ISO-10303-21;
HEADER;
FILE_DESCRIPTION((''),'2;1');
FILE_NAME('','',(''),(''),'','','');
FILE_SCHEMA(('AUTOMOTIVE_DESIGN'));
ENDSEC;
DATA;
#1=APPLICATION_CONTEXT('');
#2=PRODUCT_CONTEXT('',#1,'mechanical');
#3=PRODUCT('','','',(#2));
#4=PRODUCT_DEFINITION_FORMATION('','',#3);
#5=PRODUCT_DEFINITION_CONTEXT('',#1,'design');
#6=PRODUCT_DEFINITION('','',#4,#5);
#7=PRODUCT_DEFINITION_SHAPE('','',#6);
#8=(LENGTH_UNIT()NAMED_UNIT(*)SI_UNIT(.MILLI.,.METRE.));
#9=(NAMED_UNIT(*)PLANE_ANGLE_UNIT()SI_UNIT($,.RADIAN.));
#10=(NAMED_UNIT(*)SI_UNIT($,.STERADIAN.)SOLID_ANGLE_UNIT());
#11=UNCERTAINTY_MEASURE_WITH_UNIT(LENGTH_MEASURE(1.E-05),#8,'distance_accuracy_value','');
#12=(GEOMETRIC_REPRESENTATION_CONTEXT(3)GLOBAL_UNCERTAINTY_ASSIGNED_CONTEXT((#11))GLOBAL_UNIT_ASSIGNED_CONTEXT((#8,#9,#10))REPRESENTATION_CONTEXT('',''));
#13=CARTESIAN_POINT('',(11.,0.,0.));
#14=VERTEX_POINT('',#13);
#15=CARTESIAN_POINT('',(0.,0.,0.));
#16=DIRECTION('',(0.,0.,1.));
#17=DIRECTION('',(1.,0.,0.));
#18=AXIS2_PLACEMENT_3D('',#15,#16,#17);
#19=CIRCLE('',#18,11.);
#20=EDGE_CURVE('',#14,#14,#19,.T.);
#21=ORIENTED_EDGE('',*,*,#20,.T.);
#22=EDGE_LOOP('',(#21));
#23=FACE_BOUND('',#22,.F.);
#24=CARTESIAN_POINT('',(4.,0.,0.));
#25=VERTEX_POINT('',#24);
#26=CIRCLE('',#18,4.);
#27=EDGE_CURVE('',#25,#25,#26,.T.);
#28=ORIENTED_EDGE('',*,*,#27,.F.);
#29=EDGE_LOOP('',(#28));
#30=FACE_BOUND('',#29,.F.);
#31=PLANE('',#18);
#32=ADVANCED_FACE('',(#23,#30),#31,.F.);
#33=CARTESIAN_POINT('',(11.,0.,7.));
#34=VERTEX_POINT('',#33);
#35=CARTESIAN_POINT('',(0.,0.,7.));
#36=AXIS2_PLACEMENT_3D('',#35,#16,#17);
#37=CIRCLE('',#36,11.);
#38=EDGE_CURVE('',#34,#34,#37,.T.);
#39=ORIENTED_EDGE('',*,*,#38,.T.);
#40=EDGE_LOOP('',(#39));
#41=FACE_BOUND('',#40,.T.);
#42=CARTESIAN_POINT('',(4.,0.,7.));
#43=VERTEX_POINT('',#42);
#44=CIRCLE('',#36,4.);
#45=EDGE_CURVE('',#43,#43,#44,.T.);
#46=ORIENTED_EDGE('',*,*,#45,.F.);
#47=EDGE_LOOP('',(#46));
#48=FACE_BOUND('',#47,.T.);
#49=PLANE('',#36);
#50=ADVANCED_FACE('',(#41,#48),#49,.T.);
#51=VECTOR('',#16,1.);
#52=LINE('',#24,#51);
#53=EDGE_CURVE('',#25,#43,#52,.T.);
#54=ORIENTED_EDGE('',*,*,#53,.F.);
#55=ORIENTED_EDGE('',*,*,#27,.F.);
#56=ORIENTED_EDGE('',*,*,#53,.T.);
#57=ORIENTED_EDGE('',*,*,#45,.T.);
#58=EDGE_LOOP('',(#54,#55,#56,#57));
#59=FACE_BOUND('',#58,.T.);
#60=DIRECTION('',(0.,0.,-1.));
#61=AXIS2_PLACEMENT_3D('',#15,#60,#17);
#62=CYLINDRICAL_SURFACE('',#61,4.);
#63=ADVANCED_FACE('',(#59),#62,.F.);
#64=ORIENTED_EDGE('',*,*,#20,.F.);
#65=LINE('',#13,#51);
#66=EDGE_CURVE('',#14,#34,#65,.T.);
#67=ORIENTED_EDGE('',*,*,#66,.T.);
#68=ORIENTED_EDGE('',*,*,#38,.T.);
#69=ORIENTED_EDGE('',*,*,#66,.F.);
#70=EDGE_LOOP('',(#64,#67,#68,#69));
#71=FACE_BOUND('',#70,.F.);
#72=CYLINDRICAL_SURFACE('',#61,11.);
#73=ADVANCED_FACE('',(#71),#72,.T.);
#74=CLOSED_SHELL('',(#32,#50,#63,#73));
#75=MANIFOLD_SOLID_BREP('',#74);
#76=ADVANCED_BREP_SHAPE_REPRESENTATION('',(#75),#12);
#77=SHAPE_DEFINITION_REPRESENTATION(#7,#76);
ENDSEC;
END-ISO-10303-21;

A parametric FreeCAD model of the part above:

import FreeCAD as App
import Part
import Sketcher

V = App.Vector
Q = App.Units.Quantity

doc = App.newDocument("Part")
params = doc.addObject("Spreadsheet::Sheet", "Params")
for row, (alias, value) in enumerate([
    ("sketch1_diameter", "22 mm"),
    ("sketch1_diameter2", "8 mm"),
    ("pad1_length", "7 mm"),
], start=1):
    params.set(f"A{row}", alias)
    params.set(f"B{row}", "=" + value)
    params.setAlias(f"B{row}", alias)

body = doc.addObject("PartDesign::Body", "Body")

sketch1 = body.newObject("Sketcher::SketchObject", "Sketch")
sketch1.AttachmentSupport = (doc.getObject("XY_Plane"), [""])
sketch1.MapMode = "FlatFace"
sketch1.addGeometry(Part.Circle(V(0, 0, 0), V(0, 0, 1), 11), False)
sketch1.addGeometry(Part.Circle(V(0, 0, 0), V(0, 0, 1), 4), False)
sketch1.addConstraint(Sketcher.Constraint("Coincident", 0, 3, -1, 1))
sketch1.addConstraint(Sketcher.Constraint("Coincident", 1, 3, -1, 1))
sketch1.addConstraint(Sketcher.Constraint("Diameter", 0, Q("22 mm")))
sketch1.addConstraint(Sketcher.Constraint("Diameter", 1, Q("8 mm")))
sketch1.setExpression("Constraints[2]", "Params.sketch1_diameter")
sketch1.setExpression("Constraints[3]", "Params.sketch1_diameter2")
pad1 = body.newObject("PartDesign::Pad", "Pad")
pad1.Profile = sketch1
pad1.setExpression("Length", "Params.pad1_length")

doc.recompute()
